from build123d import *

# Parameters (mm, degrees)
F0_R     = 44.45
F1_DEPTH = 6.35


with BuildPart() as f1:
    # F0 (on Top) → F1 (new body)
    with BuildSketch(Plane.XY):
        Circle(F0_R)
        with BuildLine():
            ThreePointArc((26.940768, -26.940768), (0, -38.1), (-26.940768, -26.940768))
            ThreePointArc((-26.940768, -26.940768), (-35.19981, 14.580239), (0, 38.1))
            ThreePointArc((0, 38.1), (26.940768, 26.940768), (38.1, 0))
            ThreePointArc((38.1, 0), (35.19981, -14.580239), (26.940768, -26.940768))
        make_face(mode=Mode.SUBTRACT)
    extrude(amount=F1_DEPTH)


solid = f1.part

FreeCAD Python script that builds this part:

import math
import FreeCAD as App
import Part
import Sketcher
from FreeCAD import Vector
Q = App.Units.Quantity

doc = App.newDocument("Part")
body = doc.addObject("PartDesign::Body", "Body")

sketch1 = doc.addObject("Sketcher::SketchObject", "Sketch")
body.addObject(sketch1)
sketch1.AttachmentSupport = (doc.XY_Plane, [""])
sketch1.MapMode = "FlatFace"
sketch1.addGeometry([
    Part.Circle(Vector(0, 0, 0), Vector(0, 0, 1), 44.45),
    Part.ArcOfCircle(Part.Circle(Vector(0.000002, 0, 0), Vector(0, 0, 1), 38.099998), math.radians(-45.000002), math.radians(0)),
    Part.ArcOfCircle(Part.Circle(Vector(0, -0.000002, 0), Vector(0, 0, 1), 38.099998), math.radians(-135.000002), math.radians(-44.999998)),
    Part.ArcOfCircle(Part.Circle(Vector(0, 0, 0), Vector(0, 0, 1), 38.1), math.radians(90), math.radians(225.000001)),
    Part.ArcOfCircle(Part.Circle(Vector(-0.000001, -0.000001, 0), Vector(0, 0, 1), 38.100001), math.radians(0.000002), math.radians(89.999998)),
], False)
sketch1.addConstraint([
    Sketcher.Constraint("Tangent", 1, 1, 2, 2),
    Sketcher.Constraint("Tangent", 2, 1, 3, 2),
    Sketcher.Constraint("Tangent", 3, 1, 4, 2),
    Sketcher.Constraint("Tangent", 4, 1, 1, 2),
    Sketcher.Constraint("Coincident", 0, 3, -1, 1),
    Sketcher.Constraint("Coincident", 1, 3, -1, 1),
    Sketcher.Constraint("Equal", 1, 2),
    Sketcher.Constraint("PointOnObject", 3, 1, -2),
    Sketcher.Constraint("PointOnObject", 4, 1, -1),
    Sketcher.Constraint("Horizontal", 1, 1, 2, 1),
    Sketcher.Constraint("Diameter", 0, Q("3.5 in")),
    Sketcher.Constraint("Radius", 1, Q("1.4999999 in")),
    Sketcher.Constraint("DistanceX", 4, 3, 1, 1, Q("26.940769 mm")),
])
pad1 = doc.addObject("PartDesign::Pad", "Pad")
body.addObject(pad1)
pad1.Profile = sketch1
pad1.Length = Q("0.25 in")

doc.recompute()
